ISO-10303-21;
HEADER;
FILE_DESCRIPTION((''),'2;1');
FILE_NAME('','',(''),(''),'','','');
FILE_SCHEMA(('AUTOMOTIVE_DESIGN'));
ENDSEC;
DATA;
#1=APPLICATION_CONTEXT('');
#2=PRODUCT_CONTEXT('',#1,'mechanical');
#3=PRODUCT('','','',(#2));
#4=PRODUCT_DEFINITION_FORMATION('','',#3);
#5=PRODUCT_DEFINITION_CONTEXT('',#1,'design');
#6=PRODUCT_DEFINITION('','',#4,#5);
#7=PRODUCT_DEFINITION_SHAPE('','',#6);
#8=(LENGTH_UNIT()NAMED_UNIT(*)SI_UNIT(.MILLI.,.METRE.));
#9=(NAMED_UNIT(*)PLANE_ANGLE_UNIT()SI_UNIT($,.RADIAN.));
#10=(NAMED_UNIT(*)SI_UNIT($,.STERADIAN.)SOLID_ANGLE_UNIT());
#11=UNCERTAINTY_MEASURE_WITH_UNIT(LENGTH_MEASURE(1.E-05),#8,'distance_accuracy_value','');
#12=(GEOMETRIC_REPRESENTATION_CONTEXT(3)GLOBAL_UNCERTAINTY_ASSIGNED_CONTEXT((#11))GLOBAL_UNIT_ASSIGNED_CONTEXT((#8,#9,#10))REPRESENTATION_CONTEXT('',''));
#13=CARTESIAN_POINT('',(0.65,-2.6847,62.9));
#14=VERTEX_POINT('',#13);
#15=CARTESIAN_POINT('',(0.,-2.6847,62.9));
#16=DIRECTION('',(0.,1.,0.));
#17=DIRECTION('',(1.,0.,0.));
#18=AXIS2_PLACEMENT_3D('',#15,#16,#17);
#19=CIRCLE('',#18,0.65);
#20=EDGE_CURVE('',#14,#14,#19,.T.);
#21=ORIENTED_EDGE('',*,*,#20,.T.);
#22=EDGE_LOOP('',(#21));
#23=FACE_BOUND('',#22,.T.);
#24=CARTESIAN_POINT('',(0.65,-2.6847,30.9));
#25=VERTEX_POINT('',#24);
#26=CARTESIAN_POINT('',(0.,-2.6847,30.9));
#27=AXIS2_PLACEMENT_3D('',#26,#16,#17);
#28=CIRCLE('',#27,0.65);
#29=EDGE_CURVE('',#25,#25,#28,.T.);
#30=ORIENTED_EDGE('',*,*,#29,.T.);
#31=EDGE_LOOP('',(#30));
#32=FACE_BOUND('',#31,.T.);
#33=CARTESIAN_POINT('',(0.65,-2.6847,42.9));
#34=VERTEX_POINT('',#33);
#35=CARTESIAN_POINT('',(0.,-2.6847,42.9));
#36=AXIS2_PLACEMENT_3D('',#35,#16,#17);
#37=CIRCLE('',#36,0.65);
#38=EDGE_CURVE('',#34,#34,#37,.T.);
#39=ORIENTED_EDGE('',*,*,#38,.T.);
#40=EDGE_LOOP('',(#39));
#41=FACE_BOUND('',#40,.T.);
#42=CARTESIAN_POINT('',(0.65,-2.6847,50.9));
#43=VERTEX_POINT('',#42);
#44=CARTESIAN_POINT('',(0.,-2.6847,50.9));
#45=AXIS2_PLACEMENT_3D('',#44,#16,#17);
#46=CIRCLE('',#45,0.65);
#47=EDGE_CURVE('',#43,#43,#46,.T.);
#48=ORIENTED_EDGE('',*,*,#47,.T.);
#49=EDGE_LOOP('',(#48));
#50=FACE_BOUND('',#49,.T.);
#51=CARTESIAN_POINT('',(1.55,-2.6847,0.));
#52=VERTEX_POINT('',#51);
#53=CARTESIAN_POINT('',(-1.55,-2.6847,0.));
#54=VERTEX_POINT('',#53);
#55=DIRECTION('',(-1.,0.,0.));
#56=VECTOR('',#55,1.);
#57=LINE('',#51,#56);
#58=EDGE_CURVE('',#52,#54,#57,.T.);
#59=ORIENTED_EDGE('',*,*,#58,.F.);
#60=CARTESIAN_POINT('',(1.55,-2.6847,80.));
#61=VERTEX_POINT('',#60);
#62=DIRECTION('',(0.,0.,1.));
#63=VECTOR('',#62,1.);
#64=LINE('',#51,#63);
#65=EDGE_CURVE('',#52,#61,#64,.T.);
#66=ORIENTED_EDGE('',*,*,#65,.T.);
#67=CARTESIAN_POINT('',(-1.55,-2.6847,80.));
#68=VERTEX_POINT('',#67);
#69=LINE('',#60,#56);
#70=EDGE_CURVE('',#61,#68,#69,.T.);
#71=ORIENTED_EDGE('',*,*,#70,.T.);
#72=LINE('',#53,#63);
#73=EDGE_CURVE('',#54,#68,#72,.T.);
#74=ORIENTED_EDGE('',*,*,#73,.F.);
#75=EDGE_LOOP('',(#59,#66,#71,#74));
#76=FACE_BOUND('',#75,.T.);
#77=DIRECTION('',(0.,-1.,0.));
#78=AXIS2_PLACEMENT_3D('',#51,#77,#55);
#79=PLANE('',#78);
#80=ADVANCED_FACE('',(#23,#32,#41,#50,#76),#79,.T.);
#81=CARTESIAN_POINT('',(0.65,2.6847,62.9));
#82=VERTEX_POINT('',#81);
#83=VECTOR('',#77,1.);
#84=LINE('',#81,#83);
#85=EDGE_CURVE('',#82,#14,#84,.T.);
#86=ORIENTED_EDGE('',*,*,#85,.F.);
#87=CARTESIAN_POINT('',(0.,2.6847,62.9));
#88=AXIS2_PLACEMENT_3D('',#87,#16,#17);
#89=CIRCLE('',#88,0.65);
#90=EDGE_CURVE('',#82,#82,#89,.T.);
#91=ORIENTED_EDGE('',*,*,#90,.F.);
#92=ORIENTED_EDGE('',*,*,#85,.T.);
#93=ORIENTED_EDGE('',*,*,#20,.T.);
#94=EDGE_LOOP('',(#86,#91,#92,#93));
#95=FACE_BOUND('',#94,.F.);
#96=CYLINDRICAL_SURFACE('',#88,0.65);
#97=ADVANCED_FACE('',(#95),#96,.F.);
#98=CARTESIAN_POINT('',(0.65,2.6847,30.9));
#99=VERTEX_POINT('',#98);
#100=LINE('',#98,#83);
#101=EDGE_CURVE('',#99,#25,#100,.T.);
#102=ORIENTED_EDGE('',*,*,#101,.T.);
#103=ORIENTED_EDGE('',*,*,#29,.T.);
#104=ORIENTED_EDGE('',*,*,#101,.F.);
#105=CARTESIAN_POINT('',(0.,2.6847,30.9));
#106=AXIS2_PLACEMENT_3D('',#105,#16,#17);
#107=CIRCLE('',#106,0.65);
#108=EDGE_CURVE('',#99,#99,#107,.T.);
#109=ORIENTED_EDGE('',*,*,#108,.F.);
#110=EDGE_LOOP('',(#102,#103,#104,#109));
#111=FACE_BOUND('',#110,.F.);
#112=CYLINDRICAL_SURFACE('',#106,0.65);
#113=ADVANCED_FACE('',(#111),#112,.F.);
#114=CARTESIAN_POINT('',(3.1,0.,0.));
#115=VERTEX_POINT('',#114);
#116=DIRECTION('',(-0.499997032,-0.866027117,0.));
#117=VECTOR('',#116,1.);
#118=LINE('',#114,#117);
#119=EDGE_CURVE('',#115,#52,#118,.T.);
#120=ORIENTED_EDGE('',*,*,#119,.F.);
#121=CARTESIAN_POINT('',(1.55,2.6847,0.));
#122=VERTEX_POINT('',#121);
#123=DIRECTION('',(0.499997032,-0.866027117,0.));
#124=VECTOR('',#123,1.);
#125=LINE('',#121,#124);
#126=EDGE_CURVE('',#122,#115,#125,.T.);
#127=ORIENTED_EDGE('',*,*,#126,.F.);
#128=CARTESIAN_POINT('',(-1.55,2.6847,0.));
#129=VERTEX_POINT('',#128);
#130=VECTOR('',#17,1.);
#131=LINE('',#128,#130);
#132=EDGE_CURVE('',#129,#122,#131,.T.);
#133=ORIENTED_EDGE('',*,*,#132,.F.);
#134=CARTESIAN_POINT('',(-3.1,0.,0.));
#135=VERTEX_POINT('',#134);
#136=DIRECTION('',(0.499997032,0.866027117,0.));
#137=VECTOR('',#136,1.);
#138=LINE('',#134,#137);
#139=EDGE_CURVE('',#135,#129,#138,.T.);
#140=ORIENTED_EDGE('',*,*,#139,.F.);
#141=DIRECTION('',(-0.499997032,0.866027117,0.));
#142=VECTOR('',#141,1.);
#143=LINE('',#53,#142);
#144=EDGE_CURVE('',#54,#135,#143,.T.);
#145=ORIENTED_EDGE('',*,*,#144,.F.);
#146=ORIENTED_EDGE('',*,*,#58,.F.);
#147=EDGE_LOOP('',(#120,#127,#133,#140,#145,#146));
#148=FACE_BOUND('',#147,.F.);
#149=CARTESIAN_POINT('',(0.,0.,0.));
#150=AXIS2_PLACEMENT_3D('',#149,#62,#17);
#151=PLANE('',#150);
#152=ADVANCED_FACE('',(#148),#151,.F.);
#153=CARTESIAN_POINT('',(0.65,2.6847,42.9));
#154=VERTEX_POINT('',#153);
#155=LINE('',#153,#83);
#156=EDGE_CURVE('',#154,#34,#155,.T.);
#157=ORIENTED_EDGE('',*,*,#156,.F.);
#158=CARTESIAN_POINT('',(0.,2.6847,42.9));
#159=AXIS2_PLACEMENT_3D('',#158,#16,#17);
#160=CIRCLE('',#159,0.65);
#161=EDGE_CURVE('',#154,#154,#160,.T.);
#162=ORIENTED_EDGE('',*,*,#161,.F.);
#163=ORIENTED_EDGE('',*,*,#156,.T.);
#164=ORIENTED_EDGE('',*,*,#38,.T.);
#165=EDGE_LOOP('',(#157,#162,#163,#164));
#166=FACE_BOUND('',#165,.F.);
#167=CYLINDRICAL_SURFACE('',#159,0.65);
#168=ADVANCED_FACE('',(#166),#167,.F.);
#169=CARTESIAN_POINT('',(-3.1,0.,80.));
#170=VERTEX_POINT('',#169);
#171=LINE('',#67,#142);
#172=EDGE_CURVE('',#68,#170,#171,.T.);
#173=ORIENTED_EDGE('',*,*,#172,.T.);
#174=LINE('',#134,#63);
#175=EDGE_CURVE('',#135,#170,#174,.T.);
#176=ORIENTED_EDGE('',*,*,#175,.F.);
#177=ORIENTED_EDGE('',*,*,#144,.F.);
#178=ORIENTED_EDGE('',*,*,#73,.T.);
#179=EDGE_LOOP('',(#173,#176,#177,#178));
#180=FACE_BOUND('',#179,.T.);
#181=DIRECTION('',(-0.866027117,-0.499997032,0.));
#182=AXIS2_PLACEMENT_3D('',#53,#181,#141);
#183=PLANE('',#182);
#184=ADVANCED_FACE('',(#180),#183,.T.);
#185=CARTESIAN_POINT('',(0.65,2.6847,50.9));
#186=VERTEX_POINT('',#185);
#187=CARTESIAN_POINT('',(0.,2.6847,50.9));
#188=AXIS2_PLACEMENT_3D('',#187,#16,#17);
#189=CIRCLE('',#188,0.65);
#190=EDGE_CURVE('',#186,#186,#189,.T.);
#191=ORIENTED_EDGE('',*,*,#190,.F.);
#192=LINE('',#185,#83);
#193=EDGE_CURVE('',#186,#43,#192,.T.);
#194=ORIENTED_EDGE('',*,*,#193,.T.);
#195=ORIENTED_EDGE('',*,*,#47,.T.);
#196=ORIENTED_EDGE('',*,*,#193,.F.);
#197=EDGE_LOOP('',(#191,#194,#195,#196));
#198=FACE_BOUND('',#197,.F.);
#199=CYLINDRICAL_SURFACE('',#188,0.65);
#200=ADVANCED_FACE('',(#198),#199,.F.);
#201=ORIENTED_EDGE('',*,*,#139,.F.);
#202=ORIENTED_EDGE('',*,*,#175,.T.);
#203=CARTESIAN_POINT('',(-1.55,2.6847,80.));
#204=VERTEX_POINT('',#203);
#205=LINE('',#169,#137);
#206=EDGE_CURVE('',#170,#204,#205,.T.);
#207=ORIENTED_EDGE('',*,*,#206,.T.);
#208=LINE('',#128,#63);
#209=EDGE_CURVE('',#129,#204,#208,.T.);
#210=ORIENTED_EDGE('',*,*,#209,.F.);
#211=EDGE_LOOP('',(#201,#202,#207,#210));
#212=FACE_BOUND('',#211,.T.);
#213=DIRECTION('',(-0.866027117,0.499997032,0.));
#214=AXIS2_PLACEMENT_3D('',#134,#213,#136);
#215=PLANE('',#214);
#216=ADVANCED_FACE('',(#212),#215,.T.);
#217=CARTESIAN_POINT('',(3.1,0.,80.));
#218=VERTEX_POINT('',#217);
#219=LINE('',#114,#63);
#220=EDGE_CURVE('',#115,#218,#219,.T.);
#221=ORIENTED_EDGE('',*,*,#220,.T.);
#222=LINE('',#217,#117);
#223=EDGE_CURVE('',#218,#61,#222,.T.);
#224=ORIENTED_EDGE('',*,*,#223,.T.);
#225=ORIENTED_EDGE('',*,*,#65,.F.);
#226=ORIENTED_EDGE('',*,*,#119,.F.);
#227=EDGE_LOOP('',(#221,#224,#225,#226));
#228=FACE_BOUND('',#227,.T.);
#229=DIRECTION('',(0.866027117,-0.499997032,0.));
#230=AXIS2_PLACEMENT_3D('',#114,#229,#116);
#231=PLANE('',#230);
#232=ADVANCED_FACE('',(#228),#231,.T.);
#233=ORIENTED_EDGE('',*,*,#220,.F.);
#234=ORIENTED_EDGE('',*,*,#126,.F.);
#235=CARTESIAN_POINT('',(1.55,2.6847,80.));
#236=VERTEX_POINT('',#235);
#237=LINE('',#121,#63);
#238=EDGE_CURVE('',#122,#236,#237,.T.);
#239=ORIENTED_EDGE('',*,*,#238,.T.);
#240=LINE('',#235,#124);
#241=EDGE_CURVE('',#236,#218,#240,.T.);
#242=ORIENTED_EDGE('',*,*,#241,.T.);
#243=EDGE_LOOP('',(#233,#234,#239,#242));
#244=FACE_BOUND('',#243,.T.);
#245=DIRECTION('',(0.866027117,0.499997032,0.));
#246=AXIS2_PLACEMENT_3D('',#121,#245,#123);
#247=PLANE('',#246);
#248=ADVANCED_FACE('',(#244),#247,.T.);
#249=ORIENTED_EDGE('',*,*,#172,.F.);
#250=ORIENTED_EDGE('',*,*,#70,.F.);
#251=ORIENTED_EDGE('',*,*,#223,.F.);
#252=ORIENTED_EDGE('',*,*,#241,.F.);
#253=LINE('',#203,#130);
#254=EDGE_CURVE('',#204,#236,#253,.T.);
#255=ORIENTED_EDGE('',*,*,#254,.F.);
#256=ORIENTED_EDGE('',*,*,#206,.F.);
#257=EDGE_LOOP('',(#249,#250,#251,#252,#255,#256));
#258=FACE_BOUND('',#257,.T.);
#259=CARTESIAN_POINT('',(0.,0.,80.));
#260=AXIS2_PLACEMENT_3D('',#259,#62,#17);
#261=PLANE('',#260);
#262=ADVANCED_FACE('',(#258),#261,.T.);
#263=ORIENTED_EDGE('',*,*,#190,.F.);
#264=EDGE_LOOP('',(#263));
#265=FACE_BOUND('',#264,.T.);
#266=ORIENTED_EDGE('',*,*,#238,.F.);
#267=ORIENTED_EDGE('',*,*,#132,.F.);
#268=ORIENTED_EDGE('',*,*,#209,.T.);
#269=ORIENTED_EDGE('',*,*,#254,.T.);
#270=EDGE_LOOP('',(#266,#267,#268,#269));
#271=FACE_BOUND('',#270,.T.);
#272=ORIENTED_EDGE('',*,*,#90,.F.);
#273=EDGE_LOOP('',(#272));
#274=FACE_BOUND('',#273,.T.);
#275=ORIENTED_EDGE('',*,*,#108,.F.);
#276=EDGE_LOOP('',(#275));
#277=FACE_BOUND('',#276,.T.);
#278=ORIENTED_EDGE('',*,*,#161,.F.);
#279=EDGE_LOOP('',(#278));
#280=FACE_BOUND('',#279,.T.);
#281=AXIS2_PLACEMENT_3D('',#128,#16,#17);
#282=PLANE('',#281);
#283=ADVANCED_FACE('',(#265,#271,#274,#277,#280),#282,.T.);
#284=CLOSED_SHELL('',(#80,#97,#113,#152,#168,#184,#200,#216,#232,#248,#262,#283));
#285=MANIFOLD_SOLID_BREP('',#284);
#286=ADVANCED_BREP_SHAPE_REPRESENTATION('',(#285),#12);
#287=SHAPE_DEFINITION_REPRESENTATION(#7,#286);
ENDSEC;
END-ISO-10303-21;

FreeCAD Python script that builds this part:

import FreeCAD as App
import Part
import Sketcher

V = App.Vector
Q = App.Units.Quantity

doc = App.newDocument("Part")
body = doc.addObject("PartDesign::Body", "Body")

sketch1 = body.newObject("Sketcher::SketchObject", "Sketch")
sketch1.AttachmentSupport = (doc.getObject("XY_Plane"), [""])
sketch1.MapMode = "FlatFace"
sketch1.addGeometry([
    Part.LineSegment(V(1.6, 2.7, 0), V(-1.6, 2.7, 0)),
    Part.LineSegment(V(-1.6, 2.7, 0), V(-3.1, 0, 0)),
    Part.LineSegment(V(-3.1, 0, 0), V(-1.6, -2.7, 0)),
    Part.LineSegment(V(-1.6, -2.7, 0), V(1.6, -2.7, 0)),
    Part.LineSegment(V(1.6, -2.7, 0), V(3.1, 0, 0)),
    Part.LineSegment(V(3.1, 0, 0), V(1.6, 2.7, 0)),
], False)
sketch1.addConstraint([
    Sketcher.Constraint("Coincident", 0, 2, 1, 1),
    Sketcher.Constraint("Coincident", 1, 2, 2, 1),
    Sketcher.Constraint("Coincident", 2, 2, 3, 1),
    Sketcher.Constraint("Coincident", 3, 2, 4, 1),
    Sketcher.Constraint("Coincident", 4, 2, 5, 1),
    Sketcher.Constraint("Coincident", 5, 2, 0, 1),
    Sketcher.Constraint("Horizontal", 0),
    Sketcher.Constraint("Horizontal", 3),
    Sketcher.Constraint("Symmetric", 0, 2, 3, 2, -1, 1),
    Sketcher.Constraint("Symmetric", 1, 2, 4, 2, -1, 1),
    Sketcher.Constraint("PointOnObject", 1, 2, -1),
    Sketcher.Constraint("Parallel", 2, 5),
    Sketcher.Constraint("Vertical", 0, 2, 2, 2),
    Sketcher.Constraint("DistanceX", 0, 2, 0, 1, Q("3.1 mm")),
    Sketcher.Constraint("Distance", 1, Q("3.1 mm")),
    Sketcher.Constraint("DistanceX", 1, 2, -1, 1, Q("3.1 mm")),
])
pad1 = body.newObject("PartDesign::Pad", "Pad")
pad1.Profile = sketch1
pad1.Length = 80

sketch2 = body.newObject("Sketcher::SketchObject", "Sketch001")
sketch2.AttachmentSupport = (doc.getObject("XZ_Plane"), [""])
sketch2.MapMode = "FlatFace"
sketch2.AttachmentOffset = App.Placement(V(0, 0, -2.6847), App.Rotation())
sketch2.addGeometry([
    Part.Circle(V(0, 30.9, 0), V(0, 0, 1), 0.7),
    Part.Circle(V(0, 42.9, 0), V(0, 0, 1), 0.7),
    Part.Circle(V(0, 50.9, 0), V(0, 0, 1), 0.7),
    Part.Circle(V(0, 62.9, 0), V(0, 0, 1), 0.7),
], False)
sketch2.addConstraint([
    Sketcher.Constraint("Equal", 0, 1),
    Sketcher.Constraint("Equal", 1, 2),
    Sketcher.Constraint("Equal", 2, 3),
    Sketcher.Constraint("PointOnObject", 0, 3, -2),
    Sketcher.Constraint("PointOnObject", 1, 3, -2),
    Sketcher.Constraint("PointOnObject", 2, 3, -2),
    Sketcher.Constraint("PointOnObject", 3, 3, -2),
    Sketcher.Constraint("Diameter", 0, Q("1.3 mm")),
    Sketcher.Constraint("DistanceY", 0, 3, 1, 3, Q("12 mm")),
    Sketcher.Constraint("DistanceY", 1, 3, 2, 3, Q("8 mm")),
    Sketcher.Constraint("DistanceY", 2, 3, 3, 3, Q("12 mm")),
    Sketcher.Constraint("DistanceY", -1, 1, 0, 3, Q("30.9 mm")),
])
pocket1 = body.newObject("PartDesign::Pocket", "Pocket")
pocket1.Profile = sketch2
pocket1.Length = 6
pocket1.Reversed = True

doc.recompute()
